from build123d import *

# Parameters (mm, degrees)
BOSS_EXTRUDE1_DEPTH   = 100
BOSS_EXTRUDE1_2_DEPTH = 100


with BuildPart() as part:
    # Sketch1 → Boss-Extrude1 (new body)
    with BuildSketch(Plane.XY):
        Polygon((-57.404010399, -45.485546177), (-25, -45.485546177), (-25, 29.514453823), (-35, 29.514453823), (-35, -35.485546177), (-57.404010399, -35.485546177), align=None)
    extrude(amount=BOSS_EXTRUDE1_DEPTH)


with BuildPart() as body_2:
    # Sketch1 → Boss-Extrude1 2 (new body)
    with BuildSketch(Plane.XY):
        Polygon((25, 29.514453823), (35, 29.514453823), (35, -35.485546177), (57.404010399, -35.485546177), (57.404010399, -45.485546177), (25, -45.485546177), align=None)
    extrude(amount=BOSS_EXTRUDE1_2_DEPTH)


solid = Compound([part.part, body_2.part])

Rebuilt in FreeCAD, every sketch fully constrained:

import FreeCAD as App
import Part
import Sketcher
from FreeCAD import Vector

doc = App.newDocument("Part")
body = doc.addObject("PartDesign::Body", "Body")

sketch1 = body.newObject("Sketcher::SketchObject", "Sketch")
sketch1.AttachmentSupport = (doc.getObject("XY_Plane"), [""])
sketch1.MapMode = "FlatFace"
sketch1.addGeometry(Part.LineSegment(Vector(-57, -45, 0), Vector(-25, -45, 0)), False)
sketch1.addGeometry(Part.LineSegment(Vector(-25, -45, 0), Vector(-25, 30, 0)), False)
sketch1.addGeometry(Part.LineSegment(Vector(-25, 30, 0), Vector(-35, 30, 0)), False)
sketch1.addGeometry(Part.LineSegment(Vector(-35, 30, 0), Vector(-35, -35, 0)), False)
sketch1.addGeometry(Part.LineSegment(Vector(-35, -35, 0), Vector(-57, -35, 0)), False)
sketch1.addGeometry(Part.LineSegment(Vector(-57, -35, 0), Vector(-57, -45, 0)), False)
sketch1.addConstraint(Sketcher.Constraint("Coincident", 0, 2, 1, 1))
sketch1.addConstraint(Sketcher.Constraint("Coincident", 1, 2, 2, 1))
sketch1.addConstraint(Sketcher.Constraint("Coincident", 2, 2, 3, 1))
sketch1.addConstraint(Sketcher.Constraint("Coincident", 3, 2, 4, 1))
sketch1.addConstraint(Sketcher.Constraint("Coincident", 4, 2, 5, 1))
sketch1.addConstraint(Sketcher.Constraint("Coincident", 5, 2, 0, 1))
sketch1.addConstraint(Sketcher.Constraint("Horizontal", 0))
sketch1.addConstraint(Sketcher.Constraint("Vertical", 1))
sketch1.addConstraint(Sketcher.Constraint("Horizontal", 2))
sketch1.addConstraint(Sketcher.Constraint("Vertical", 3))
sketch1.addConstraint(Sketcher.Constraint("Horizontal", 4))
sketch1.addConstraint(Sketcher.Constraint("Vertical", 5))
sketch1.addConstraint(Sketcher.Constraint("Equal", 2, 5))
sketch1.addConstraint(Sketcher.Constraint("DistanceX", 2, 2, 2, 1, 10.0))
sketch1.addConstraint(Sketcher.Constraint("DistanceY", 1, 1, 1, 2, 75.0))
sketch1.addConstraint(Sketcher.Constraint("DistanceX", 0, 2, -1, 1, 25.0))
sketch1.addConstraint(Sketcher.Constraint("DistanceX", 0, 1, 0, 2, 32.40401))
sketch1.addConstraint(Sketcher.Constraint("DistanceY", 0, 2, -1, 1, 45.485546))
pad1 = body.newObject("PartDesign::Pad", "Pad")
pad1.Profile = sketch1
pad1.Length = 100
body2 = doc.addObject("PartDesign::Body", "Body001")

sketch2 = body2.newObject("Sketcher::SketchObject", "Sketch001")
sketch2.AttachmentSupport = (doc.getObject("XY_Plane001"), [""])
sketch2.MapMode = "FlatFace"
sketch2.addGeometry(Part.LineSegment(Vector(35, 30, 0), Vector(25, 30, 0)), False)
sketch2.addGeometry(Part.LineSegment(Vector(25, 30, 0), Vector(25, -45, 0)), False)
sketch2.addGeometry(Part.LineSegment(Vector(25, -45, 0), Vector(57, -45, 0)), False)
sketch2.addGeometry(Part.LineSegment(Vector(57, -45, 0), Vector(57, -35, 0)), False)
sketch2.addGeometry(Part.LineSegment(Vector(57, -35, 0), Vector(35, -35, 0)), False)
sketch2.addGeometry(Part.LineSegment(Vector(35, -35, 0), Vector(35, 30, 0)), False)
sketch2.addConstraint(Sketcher.Constraint("Coincident", 0, 2, 1, 1))
sketch2.addConstraint(Sketcher.Constraint("Coincident", 1, 2, 2, 1))
sketch2.addConstraint(Sketcher.Constraint("Coincident", 2, 2, 3, 1))
sketch2.addConstraint(Sketcher.Constraint("Coincident", 3, 2, 4, 1))
sketch2.addConstraint(Sketcher.Constraint("Coincident", 4, 2, 5, 1))
sketch2.addConstraint(Sketcher.Constraint("Coincident", 5, 2, 0, 1))
sketch2.addConstraint(Sketcher.Constraint("Horizontal", 0))
sketch2.addConstraint(Sketcher.Constraint("Vertical", 1))
sketch2.addConstraint(Sketcher.Constraint("Horizontal", 2))
sketch2.addConstraint(Sketcher.Constraint("Vertical", 3))
sketch2.addConstraint(Sketcher.Constraint("Horizontal", 4))
sketch2.addConstraint(Sketcher.Constraint("Vertical", 5))
sketch2.addConstraint(Sketcher.Constraint("Equal", 0, 3))
sketch2.addConstraint(Sketcher.Constraint("DistanceX", 0, 2, 0, 1, 10.0))
sketch2.addConstraint(Sketcher.Constraint("DistanceY", 1, 2, 1, 1, 75.0))
sketch2.addConstraint(Sketcher.Constraint("DistanceX", -1, 1, 0, 2, 25.0))
sketch2.addConstraint(Sketcher.Constraint("DistanceX", 2, 1, 2, 2, 32.40401))
sketch2.addConstraint(Sketcher.Constraint("DistanceY", -1, 1, 0, 2, 29.514454))
pad2 = body2.newObject("PartDesign::Pad", "Pad001")
pad2.Profile = sketch2
pad2.Length = 100

doc.recompute()
